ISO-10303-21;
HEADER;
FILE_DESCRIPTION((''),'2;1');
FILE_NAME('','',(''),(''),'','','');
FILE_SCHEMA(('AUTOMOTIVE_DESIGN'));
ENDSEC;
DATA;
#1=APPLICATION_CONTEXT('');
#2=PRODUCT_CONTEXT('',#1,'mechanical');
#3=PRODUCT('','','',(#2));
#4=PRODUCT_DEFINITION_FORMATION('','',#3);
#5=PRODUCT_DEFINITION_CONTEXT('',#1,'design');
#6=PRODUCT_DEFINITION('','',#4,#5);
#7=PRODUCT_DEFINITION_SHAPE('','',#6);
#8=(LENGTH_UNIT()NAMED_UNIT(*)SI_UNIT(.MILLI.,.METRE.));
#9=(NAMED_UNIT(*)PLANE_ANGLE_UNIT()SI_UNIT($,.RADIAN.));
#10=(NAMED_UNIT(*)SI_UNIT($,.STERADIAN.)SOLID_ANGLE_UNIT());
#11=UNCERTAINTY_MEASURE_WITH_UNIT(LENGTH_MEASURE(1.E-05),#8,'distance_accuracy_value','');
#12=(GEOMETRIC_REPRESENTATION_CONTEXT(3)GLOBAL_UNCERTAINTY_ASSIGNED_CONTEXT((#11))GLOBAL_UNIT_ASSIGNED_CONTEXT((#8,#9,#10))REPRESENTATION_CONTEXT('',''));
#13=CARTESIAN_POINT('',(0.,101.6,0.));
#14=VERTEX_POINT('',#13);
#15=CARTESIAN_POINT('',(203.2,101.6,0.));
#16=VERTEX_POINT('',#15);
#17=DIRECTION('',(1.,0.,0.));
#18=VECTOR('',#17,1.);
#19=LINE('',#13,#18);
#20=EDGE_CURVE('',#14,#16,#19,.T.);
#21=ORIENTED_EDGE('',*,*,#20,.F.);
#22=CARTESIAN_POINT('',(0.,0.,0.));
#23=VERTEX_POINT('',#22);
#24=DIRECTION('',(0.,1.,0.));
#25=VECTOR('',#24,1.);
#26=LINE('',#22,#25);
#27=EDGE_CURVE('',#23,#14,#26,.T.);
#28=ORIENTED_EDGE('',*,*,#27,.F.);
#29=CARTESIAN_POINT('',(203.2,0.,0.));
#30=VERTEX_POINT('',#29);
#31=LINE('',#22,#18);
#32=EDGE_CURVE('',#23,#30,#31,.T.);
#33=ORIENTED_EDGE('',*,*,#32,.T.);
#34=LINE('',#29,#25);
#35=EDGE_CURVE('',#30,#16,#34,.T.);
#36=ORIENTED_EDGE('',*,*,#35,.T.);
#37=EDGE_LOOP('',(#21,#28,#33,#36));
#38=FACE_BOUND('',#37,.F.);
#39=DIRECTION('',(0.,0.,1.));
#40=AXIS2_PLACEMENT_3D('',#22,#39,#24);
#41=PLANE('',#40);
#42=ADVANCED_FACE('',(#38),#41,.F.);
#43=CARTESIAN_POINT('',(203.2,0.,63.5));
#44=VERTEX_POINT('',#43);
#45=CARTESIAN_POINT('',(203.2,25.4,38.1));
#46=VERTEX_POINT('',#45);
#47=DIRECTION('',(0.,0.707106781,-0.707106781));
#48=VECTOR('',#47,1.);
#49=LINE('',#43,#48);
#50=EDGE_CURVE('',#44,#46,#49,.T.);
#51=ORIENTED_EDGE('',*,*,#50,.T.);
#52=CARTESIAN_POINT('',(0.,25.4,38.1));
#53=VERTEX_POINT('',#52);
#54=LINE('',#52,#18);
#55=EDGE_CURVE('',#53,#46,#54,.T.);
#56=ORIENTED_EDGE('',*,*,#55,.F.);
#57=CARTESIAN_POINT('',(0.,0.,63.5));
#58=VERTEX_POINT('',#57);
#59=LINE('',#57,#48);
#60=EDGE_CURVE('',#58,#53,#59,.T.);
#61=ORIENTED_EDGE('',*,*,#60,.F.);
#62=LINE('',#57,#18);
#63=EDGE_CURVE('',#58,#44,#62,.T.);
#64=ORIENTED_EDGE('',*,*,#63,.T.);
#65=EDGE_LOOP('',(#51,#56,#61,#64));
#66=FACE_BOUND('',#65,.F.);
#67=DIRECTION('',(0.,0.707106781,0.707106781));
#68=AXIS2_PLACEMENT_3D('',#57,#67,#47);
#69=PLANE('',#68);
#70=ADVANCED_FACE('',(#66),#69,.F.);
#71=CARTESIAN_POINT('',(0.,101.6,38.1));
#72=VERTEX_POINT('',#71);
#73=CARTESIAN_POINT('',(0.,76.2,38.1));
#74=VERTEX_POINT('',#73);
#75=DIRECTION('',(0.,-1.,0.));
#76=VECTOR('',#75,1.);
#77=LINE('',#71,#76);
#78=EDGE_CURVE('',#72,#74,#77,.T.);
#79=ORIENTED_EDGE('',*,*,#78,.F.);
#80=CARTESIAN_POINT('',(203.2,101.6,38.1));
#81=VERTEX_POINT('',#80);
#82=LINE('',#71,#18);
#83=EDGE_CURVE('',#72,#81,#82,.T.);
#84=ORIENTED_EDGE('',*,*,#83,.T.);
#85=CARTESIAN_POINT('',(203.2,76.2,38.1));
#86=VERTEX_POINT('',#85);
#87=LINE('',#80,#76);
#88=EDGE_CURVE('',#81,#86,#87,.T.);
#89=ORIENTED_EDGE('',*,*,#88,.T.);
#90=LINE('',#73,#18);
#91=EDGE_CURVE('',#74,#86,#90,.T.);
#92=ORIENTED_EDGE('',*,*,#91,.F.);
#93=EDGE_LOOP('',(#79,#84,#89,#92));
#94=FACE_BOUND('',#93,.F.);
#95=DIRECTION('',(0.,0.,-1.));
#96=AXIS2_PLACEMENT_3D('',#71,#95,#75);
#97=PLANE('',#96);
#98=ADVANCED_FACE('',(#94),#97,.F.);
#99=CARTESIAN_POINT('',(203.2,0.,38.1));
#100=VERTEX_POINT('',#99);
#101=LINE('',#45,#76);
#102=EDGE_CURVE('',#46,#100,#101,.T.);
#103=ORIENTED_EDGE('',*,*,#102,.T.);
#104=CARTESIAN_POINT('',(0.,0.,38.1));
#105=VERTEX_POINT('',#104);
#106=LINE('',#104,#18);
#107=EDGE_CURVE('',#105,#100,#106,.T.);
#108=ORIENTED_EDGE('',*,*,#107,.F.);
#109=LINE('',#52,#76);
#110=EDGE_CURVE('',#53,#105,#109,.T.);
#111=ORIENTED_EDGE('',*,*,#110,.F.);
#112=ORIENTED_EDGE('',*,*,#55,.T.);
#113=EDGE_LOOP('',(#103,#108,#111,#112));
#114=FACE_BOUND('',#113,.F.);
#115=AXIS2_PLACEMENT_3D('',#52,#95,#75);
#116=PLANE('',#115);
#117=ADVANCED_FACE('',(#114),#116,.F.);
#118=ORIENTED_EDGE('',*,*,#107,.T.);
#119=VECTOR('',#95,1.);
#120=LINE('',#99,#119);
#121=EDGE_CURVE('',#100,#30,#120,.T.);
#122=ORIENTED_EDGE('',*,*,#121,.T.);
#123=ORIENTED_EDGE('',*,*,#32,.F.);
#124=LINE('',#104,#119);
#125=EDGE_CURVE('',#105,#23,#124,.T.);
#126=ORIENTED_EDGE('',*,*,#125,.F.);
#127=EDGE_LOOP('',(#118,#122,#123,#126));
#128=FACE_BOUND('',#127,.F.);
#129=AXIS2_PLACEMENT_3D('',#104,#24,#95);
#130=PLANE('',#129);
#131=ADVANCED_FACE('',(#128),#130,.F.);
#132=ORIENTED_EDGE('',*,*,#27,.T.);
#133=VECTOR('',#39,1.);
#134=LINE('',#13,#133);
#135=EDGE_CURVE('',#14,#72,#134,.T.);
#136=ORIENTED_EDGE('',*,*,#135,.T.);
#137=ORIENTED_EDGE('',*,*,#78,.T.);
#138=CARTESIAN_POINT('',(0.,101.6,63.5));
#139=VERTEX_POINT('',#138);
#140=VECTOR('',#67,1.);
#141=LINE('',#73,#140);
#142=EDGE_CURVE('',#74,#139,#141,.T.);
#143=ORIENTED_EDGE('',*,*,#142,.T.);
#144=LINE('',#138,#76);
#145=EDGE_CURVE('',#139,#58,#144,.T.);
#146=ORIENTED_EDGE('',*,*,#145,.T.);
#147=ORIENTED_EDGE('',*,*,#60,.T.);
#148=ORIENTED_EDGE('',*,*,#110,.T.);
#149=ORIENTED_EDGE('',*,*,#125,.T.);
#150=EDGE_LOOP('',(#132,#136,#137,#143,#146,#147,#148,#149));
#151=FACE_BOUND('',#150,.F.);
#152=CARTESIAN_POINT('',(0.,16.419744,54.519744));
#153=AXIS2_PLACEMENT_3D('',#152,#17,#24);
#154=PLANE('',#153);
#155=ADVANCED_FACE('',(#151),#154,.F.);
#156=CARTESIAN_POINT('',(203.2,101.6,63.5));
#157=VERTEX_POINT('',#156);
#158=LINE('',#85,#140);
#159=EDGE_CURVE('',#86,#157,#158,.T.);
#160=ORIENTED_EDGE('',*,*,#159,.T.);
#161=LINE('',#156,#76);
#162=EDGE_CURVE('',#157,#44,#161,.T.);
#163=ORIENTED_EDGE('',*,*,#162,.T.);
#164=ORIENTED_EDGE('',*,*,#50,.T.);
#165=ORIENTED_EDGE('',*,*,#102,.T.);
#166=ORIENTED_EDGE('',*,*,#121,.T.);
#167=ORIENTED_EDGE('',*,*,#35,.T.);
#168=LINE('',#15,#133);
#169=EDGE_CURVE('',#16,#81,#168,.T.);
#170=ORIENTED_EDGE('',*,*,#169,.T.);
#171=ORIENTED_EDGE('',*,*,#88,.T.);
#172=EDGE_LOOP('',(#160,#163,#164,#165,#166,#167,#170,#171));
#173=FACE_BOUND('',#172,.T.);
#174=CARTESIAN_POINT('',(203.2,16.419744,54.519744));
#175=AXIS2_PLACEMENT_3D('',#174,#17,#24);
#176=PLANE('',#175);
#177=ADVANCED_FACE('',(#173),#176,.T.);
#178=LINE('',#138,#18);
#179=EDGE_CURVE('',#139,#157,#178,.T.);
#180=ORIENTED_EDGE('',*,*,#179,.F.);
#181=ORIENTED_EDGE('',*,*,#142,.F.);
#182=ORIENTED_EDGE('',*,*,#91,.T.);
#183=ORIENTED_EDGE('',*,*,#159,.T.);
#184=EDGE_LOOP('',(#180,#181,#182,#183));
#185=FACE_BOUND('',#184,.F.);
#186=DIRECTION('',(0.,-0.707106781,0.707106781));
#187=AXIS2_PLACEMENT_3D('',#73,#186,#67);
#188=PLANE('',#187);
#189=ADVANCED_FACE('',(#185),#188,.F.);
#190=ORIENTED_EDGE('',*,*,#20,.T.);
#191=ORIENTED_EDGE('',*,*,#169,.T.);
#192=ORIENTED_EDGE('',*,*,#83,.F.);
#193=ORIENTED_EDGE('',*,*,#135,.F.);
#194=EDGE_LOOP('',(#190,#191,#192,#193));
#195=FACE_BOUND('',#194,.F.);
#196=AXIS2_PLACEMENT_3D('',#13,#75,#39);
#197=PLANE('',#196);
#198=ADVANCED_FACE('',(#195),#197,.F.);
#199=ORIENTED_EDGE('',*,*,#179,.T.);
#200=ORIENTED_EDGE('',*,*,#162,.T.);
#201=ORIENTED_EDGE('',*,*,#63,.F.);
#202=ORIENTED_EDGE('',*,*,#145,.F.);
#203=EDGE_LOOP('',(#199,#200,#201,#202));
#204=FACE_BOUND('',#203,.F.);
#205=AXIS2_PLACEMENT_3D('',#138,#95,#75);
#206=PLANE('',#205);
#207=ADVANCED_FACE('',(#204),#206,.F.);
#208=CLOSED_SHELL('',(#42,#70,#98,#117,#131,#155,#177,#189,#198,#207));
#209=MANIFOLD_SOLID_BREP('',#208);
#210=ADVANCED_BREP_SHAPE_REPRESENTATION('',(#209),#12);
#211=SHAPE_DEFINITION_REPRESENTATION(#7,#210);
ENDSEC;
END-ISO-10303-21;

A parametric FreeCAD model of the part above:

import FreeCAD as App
import Part
import Sketcher
from FreeCAD import Vector
Q = App.Units.Quantity

doc = App.newDocument("Part")
body = doc.addObject("PartDesign::Body", "Body")

# Sketch on YZ plane
sketch1 = body.newObject("Sketcher::SketchObject", "Sketch")
sketch1.AttachmentSupport = (doc.getObject("YZ_Plane"), [""])
sketch1.MapMode = "FlatFace"
sketch1.addGeometry([
    Part.LineSegment(Vector(0, 64, 0), Vector(25, 38, 0)),  # 0
    Part.LineSegment(Vector(25, 38, 0), Vector(0, 38, 0)),  # 1
    Part.LineSegment(Vector(0, 38, 0), Vector(0, 0, 0)),  # 2
    Part.LineSegment(Vector(0, 0, 0), Vector(102, 0, 0)),  # 3
    Part.LineSegment(Vector(102, 0, 0), Vector(102, 38, 0)),  # 4
    Part.LineSegment(Vector(102, 38, 0), Vector(76, 38, 0)),  # 5
    Part.LineSegment(Vector(76, 38, 0), Vector(102, 64, 0)),  # 6
    Part.LineSegment(Vector(102, 64, 0), Vector(0, 64, 0)),  # 7
], False)
sketch1.addConstraint([
    Sketcher.Constraint("Coincident", 0, 2, 1, 1),
    Sketcher.Constraint("Coincident", 1, 2, 2, 1),
    Sketcher.Constraint("Coincident", 2, 2, 3, 1),
    Sketcher.Constraint("Coincident", 3, 2, 4, 1),
    Sketcher.Constraint("Coincident", 4, 2, 5, 1),
    Sketcher.Constraint("Coincident", 5, 2, 6, 1),
    Sketcher.Constraint("Coincident", 6, 2, 7, 1),
    Sketcher.Constraint("Coincident", 7, 2, 0, 1),
    Sketcher.Constraint("Horizontal", 1),
    Sketcher.Constraint("Vertical", 2),
    Sketcher.Constraint("Horizontal", 3),
    Sketcher.Constraint("Vertical", 4),
    Sketcher.Constraint("Horizontal", 5),
    Sketcher.Constraint("Horizontal", 7),
    Sketcher.Constraint("Coincident", 2, 2, -1, 1),
    Sketcher.Constraint("PointOnObject", 7, 2, -2),
    Sketcher.Constraint("Perpendicular", 0, 6),
    Sketcher.Constraint("Horizontal", 1, 2, 4, 2),
    Sketcher.Constraint("Vertical", 4, 2, 6, 2),
    Sketcher.Constraint("Equal", 1, 5),
    Sketcher.Constraint("DistanceX", 1, 2, 1, 1, Q("1 in")),
    Sketcher.Constraint("DistanceX", 3, 1, 3, 2, Q("4 in")),
    Sketcher.Constraint("DistanceY", 2, 2, 2, 1, Q("1.5 in")),
])
pad1 = body.newObject("PartDesign::Pad", "Pad")
pad1.Profile = sketch1
pad1.Length = Q("8 in")

doc.recompute()
